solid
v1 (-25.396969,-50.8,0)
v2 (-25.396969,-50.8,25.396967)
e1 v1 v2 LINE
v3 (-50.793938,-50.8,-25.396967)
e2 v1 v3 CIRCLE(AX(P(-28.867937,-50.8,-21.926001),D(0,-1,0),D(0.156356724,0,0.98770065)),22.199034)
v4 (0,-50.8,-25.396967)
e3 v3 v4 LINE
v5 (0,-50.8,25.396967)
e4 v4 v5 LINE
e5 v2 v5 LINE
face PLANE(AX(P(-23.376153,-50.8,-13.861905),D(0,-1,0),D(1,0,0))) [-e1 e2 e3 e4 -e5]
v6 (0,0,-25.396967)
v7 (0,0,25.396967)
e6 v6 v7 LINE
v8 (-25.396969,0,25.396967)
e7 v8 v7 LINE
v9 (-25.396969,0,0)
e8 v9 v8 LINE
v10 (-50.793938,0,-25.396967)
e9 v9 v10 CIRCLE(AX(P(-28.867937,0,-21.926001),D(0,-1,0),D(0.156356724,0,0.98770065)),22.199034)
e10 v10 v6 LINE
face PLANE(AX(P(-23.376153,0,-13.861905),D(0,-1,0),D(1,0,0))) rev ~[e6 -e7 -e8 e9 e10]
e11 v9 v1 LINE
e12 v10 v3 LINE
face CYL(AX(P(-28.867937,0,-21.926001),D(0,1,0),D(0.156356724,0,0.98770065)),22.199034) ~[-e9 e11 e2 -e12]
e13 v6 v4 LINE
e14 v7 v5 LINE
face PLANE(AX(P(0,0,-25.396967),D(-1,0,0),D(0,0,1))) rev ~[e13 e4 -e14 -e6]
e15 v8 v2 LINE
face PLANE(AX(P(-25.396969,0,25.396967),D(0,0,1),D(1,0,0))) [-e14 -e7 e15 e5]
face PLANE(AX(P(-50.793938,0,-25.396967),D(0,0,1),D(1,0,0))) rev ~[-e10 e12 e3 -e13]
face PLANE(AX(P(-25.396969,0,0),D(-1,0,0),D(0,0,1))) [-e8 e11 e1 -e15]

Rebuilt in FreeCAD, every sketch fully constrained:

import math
import FreeCAD as App
import Part
import Sketcher
from FreeCAD import Vector

doc = App.newDocument("Part")
params = doc.addObject("Spreadsheet::Sheet", "Params")
for row, (alias, value) in enumerate([
    ("pad1_length", "2 in"),
], start=1):
    params.set(f"A{row}", alias)
    params.set(f"B{row}", "=" + value)
    params.setAlias(f"B{row}", alias)

body = doc.addObject("PartDesign::Body", "Body")

# Sketch on XZ plane
sketch1 = body.newObject("Sketcher::SketchObject", "Sketch")
sketch1.AttachmentSupport = (doc.getObject("XZ_Plane"), [""])
sketch1.MapMode = "FlatFace"
sketch1.addGeometry([
    Part.LineSegment(Vector(0, -25, 0), Vector(0, 25, 0)),  # 0
    Part.LineSegment(Vector(0, 25, 0), Vector(-25, 25, 0)),  # 1
    Part.LineSegment(Vector(-25, 25, 0), Vector(-25, 0, 0)),  # 2
    Part.ArcOfCircle(Part.Circle(Vector(-29, -22, 0), Vector(0, 0, 1), 22), math.radians(81), math.radians(189)),  # 3
    Part.LineSegment(Vector(-51, -25, 0), Vector(0, -25, 0)),  # 4
], False)
sketch1.addConstraint([
    Sketcher.Constraint("Coincident", 0, 2, 1, 1),
    Sketcher.Constraint("Coincident", 1, 2, 2, 1),
    Sketcher.Constraint("Coincident", 2, 2, 3, 1),
    Sketcher.Constraint("Coincident", 3, 2, 4, 1),
    Sketcher.Constraint("Coincident", 4, 2, 0, 1),
    Sketcher.Constraint("Vertical", 0),
    Sketcher.Constraint("Horizontal", 1),
    Sketcher.Constraint("Vertical", 2),
    Sketcher.Constraint("Horizontal", 4),
    Sketcher.Constraint("Symmetric", 0, 2, 4, 2, -1, 1),
    Sketcher.Constraint("PointOnObject", 2, 2, -1),
    Sketcher.Constraint("Equal", 1, 2),
    Sketcher.Constraint("Radius", 3, 22.199034),
    Sketcher.Constraint("DistanceX", 1, 2, 1, 1, 25.396969),
    Sketcher.Constraint("DistanceX", 4, 1, 4, 2, 50.793938),
])
pad1 = body.newObject("PartDesign::Pad", "Pad")
pad1.Profile = sketch1
pad1.setExpression("Length", "Params.pad1_length")

doc.recompute()
